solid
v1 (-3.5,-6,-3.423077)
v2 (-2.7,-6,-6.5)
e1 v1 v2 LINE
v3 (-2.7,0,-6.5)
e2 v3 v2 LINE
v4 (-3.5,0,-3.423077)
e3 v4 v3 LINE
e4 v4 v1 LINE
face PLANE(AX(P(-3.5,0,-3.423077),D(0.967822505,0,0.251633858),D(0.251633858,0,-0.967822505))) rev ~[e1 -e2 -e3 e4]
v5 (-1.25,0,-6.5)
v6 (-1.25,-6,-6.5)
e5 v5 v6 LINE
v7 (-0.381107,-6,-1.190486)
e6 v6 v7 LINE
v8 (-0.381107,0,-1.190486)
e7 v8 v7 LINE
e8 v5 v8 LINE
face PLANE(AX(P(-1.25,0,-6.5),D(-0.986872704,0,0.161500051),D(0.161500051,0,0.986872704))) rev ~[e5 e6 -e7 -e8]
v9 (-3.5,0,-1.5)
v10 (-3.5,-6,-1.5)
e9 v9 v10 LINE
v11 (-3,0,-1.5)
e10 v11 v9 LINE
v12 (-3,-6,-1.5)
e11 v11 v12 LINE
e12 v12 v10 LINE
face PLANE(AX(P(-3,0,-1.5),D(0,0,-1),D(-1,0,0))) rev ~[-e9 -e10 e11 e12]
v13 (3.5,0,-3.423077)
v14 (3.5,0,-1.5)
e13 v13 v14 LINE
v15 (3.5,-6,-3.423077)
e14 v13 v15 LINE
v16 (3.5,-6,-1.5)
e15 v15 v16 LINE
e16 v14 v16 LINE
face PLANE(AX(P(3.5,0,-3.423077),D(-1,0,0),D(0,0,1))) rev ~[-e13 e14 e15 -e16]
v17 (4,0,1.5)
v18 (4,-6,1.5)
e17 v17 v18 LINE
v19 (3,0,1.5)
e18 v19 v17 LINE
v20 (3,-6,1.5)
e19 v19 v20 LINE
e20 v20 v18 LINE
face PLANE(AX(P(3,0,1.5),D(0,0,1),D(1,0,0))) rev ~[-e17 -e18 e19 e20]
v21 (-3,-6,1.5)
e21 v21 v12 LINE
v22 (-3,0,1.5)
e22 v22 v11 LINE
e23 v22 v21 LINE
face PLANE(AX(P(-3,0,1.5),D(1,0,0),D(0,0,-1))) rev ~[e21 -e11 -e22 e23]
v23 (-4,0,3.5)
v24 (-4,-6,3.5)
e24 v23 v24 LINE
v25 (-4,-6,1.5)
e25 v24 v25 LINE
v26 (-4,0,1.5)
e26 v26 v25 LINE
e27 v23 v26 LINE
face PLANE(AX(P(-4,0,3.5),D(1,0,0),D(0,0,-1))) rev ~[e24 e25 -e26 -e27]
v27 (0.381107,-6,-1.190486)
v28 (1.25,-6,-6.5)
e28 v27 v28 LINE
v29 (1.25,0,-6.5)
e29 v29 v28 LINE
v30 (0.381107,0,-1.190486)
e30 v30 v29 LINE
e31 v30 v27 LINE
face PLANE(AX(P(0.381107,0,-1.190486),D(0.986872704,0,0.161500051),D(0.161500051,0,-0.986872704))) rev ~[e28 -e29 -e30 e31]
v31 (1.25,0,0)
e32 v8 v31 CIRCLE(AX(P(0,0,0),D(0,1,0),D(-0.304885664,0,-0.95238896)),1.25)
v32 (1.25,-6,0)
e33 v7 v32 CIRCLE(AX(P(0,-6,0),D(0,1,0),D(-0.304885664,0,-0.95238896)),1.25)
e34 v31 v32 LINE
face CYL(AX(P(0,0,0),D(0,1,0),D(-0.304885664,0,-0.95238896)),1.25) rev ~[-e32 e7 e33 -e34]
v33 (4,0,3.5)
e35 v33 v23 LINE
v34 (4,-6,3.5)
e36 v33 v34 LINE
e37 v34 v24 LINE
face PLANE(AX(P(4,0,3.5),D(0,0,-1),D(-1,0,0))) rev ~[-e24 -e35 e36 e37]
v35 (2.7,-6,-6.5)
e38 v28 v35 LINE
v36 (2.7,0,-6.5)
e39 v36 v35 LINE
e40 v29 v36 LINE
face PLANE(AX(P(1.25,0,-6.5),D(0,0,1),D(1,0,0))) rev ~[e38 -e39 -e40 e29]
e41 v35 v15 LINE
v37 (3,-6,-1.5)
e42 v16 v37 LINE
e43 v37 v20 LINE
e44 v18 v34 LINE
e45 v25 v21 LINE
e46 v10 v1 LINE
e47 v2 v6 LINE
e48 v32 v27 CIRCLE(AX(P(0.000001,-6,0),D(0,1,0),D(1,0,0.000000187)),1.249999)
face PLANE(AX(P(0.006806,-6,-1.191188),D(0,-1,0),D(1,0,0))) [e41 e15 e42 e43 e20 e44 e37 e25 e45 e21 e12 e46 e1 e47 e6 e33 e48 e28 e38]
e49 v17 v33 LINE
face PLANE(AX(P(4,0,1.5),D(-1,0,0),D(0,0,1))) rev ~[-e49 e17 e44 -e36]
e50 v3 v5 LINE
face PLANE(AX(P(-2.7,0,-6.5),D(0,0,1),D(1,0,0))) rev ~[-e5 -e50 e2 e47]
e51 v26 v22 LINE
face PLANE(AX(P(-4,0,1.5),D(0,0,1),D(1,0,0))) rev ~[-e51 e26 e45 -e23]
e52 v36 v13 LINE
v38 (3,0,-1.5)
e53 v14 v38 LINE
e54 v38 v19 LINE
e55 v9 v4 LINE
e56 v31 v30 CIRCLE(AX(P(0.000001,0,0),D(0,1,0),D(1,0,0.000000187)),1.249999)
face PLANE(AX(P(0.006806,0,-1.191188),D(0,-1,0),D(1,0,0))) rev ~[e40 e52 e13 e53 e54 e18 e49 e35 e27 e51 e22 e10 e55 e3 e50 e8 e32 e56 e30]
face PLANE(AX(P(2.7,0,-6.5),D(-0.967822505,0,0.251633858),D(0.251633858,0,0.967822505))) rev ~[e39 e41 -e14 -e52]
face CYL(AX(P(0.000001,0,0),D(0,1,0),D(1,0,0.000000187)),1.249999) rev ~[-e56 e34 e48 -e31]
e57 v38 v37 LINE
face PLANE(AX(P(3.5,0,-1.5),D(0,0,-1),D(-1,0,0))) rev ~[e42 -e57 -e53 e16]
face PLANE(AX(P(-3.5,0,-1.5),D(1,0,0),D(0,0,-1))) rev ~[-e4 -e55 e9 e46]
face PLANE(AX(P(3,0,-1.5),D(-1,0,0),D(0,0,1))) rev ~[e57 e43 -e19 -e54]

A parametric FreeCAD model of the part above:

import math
import FreeCAD as App
import Part
import Sketcher

doc = App.newDocument("Part")
params = doc.addObject("Spreadsheet::Sheet", "Params")
for row, (alias, value) in enumerate([
    ("sketch1_width", "8 mm"),
    ("sketch1_width2", "1 mm"),
    ("sketch1_height", "2 mm"),
    ("sketch1_height2", "3 mm"),
    ("sketch1_radius", "1.25 mm"),
    ("pad1_length", "6 mm"),
], start=1):
    params.set(f"A{row}", alias)
    params.set(f"B{row}", "=" + value)
    params.setAlias(f"B{row}", alias)

body = doc.addObject("PartDesign::Body", "Body")

sketch1 = doc.addObject("Sketcher::SketchObject", "Sketch")
body.addObject(sketch1)
sketch1.AttachmentSupport = (doc.XZ_Plane, [""])
sketch1.MapMode = "FlatFace"
sketch1.addGeometry(Part.LineSegment(App.Vector(4, 3.5, 0), App.Vector(-4, 3.5, 0)), False)
sketch1.addGeometry(Part.LineSegment(App.Vector(-4, 3.5, 0), App.Vector(-4, 1.5, 0)), False)
sketch1.addGeometry(Part.LineSegment(App.Vector(-4, 1.5, 0), App.Vector(-3, 1.5, 0)), False)
sketch1.addGeometry(Part.LineSegment(App.Vector(-3, 1.5, 0), App.Vector(-3, -1.5, 0)), False)
sketch1.addGeometry(Part.LineSegment(App.Vector(-3, -1.5, 0), App.Vector(-3.5, -1.5, 0)), False)
sketch1.addGeometry(Part.LineSegment(App.Vector(-3.5, -1.5, 0), App.Vector(-3.5, -3.423077, 0)), False)
sketch1.addGeometry(Part.LineSegment(App.Vector(-3.5, -3.423077, 0), App.Vector(-2.7, -6.5, 0)), False)
sketch1.addGeometry(Part.LineSegment(App.Vector(-2.7, -6.5, 0), App.Vector(-1.25, -6.5, 0)), False)
sketch1.addGeometry(Part.LineSegment(App.Vector(-1.25, -6.5, 0), App.Vector(-0.381107, -1.190486, 0)), False)
sketch1.addGeometry(Part.ArcOfCircle(Part.Circle(App.Vector(0, 0, 0), App.Vector(0, 0, 1), 1.25), math.radians(-0.000007), math.radians(252.248715)), False)
sketch1.addGeometry(Part.ArcOfCircle(Part.Circle(App.Vector(0.000001, 0, 0), App.Vector(0, 0, 1), 1.249999), math.radians(-72.24874), math.radians(0.000011)), False)
sketch1.addGeometry(Part.LineSegment(App.Vector(0.381107, -1.190486, 0), App.Vector(1.25, -6.5, 0)), False)
sketch1.addGeometry(Part.LineSegment(App.Vector(1.25, -6.5, 0), App.Vector(2.7, -6.5, 0)), False)
sketch1.addGeometry(Part.LineSegment(App.Vector(2.7, -6.5, 0), App.Vector(3.5, -3.423077, 0)), False)
sketch1.addGeometry(Part.LineSegment(App.Vector(3.5, -3.423077, 0), App.Vector(3.5, -1.5, 0)), False)
sketch1.addGeometry(Part.LineSegment(App.Vector(3.5, -1.5, 0), App.Vector(3, -1.5, 0)), False)
sketch1.addGeometry(Part.LineSegment(App.Vector(3, -1.5, 0), App.Vector(3, 1.5, 0)), False)
sketch1.addGeometry(Part.LineSegment(App.Vector(3, 1.5, 0), App.Vector(4, 1.5, 0)), False)
sketch1.addGeometry(Part.LineSegment(App.Vector(4, 1.5, 0), App.Vector(4, 3.5, 0)), False)
sketch1.addConstraint(Sketcher.Constraint("Coincident", 0, 2, 1, 1))
sketch1.addConstraint(Sketcher.Constraint("Coincident", 1, 2, 2, 1))
sketch1.addConstraint(Sketcher.Constraint("Coincident", 2, 2, 3, 1))
sketch1.addConstraint(Sketcher.Constraint("Coincident", 3, 2, 4, 1))
sketch1.addConstraint(Sketcher.Constraint("Coincident", 4, 2, 5, 1))
sketch1.addConstraint(Sketcher.Constraint("Coincident", 5, 2, 6, 1))
sketch1.addConstraint(Sketcher.Constraint("Coincident", 6, 2, 7, 1))
sketch1.addConstraint(Sketcher.Constraint("Coincident", 7, 2, 8, 1))
sketch1.addConstraint(Sketcher.Constraint("Coincident", 8, 2, 9, 2))
sketch1.addConstraint(Sketcher.Constraint("Tangent", 9, 1, 10, 2))
sketch1.addConstraint(Sketcher.Constraint("Coincident", 10, 1, 11, 1))
sketch1.addConstraint(Sketcher.Constraint("Coincident", 11, 2, 12, 1))
sketch1.addConstraint(Sketcher.Constraint("Coincident", 12, 2, 13, 1))
sketch1.addConstraint(Sketcher.Constraint("Coincident", 13, 2, 14, 1))
sketch1.addConstraint(Sketcher.Constraint("Coincident", 14, 2, 15, 1))
sketch1.addConstraint(Sketcher.Constraint("Coincident", 15, 2, 16, 1))
sketch1.addConstraint(Sketcher.Constraint("Coincident", 16, 2, 17, 1))
sketch1.addConstraint(Sketcher.Constraint("Coincident", 17, 2, 18, 1))
sketch1.addConstraint(Sketcher.Constraint("Coincident", 18, 2, 0, 1))
sketch1.addConstraint(Sketcher.Constraint("Horizontal", 0))
sketch1.addConstraint(Sketcher.Constraint("Vertical", 1))
sketch1.addConstraint(Sketcher.Constraint("Horizontal", 2))
sketch1.addConstraint(Sketcher.Constraint("Vertical", 3))
sketch1.addConstraint(Sketcher.Constraint("Horizontal", 4))
sketch1.addConstraint(Sketcher.Constraint("Vertical", 5))
sketch1.addConstraint(Sketcher.Constraint("Horizontal", 7))
sketch1.addConstraint(Sketcher.Constraint("Horizontal", 12))
sketch1.addConstraint(Sketcher.Constraint("Vertical", 14))
sketch1.addConstraint(Sketcher.Constraint("Horizontal", 15))
sketch1.addConstraint(Sketcher.Constraint("Vertical", 16))
sketch1.addConstraint(Sketcher.Constraint("Horizontal", 17))
sketch1.addConstraint(Sketcher.Constraint("Vertical", 18))
sketch1.addConstraint(Sketcher.Constraint("Coincident", 9, 3, -1, 1))
sketch1.addConstraint(Sketcher.Constraint("Equal", 9, 10))
sketch1.addConstraint(Sketcher.Constraint("Symmetric", 2, 2, 15, 2, -1, 1))
sketch1.addConstraint(Sketcher.Constraint("Symmetric", 7, 2, 11, 2, -2))
sketch1.addConstraint(Sketcher.Constraint("Symmetric", 5, 2, 13, 2, -2))
sketch1.addConstraint(Sketcher.Constraint("Symmetric", 1, 2, 17, 2, -2))
sketch1.addConstraint(Sketcher.Constraint("PointOnObject", 9, 1, -1))
sketch1.addConstraint(Sketcher.Constraint("Horizontal", 8, 2, 10, 1))
sketch1.addConstraint(Sketcher.Constraint("Horizontal", 4, 2, 14, 2))
sketch1.addConstraint(Sketcher.Constraint("Vertical", 9, 1, 11, 2))
sketch1.addConstraint(Sketcher.Constraint("Equal", 7, 12))
sketch1.addConstraint(Sketcher.Constraint("DistanceX", 0, 2, 0, 1, 8.0))
sketch1.addConstraint(Sketcher.Constraint("DistanceX", 2, 1, 2, 2, 1.0))
sketch1.addConstraint(Sketcher.Constraint("DistanceY", 1, 2, 1, 1, 2.0))
sketch1.addConstraint(Sketcher.Constraint("DistanceY", 3, 2, 3, 1, 3.0))
sketch1.addConstraint(Sketcher.Constraint("Radius", 9, 1.25))
sketch1.addConstraint(Sketcher.Constraint("DistanceX", 4, 2, 4, 1, 0.5))
sketch1.addConstraint(Sketcher.Constraint("DistanceY", 6, 2, 3, 2, 5.0))
sketch1.addConstraint(Sketcher.Constraint("DistanceX", 7, 1, 7, 2, 1.45))
sketch1.addConstraint(Sketcher.Constraint("Distance", 8, 5.380141))
sketch1.addConstraint(Sketcher.Constraint("DistanceY", 5, 2, 5, 1, 1.923077))
sketch1.setExpression("Constraints[43]", "Params.sketch1_width")
sketch1.setExpression("Constraints[44]", "Params.sketch1_width2")
sketch1.setExpression("Constraints[45]", "Params.sketch1_height")
sketch1.setExpression("Constraints[46]", "Params.sketch1_height2")
sketch1.setExpression("Constraints[47]", "Params.sketch1_radius")
pad1 = doc.addObject("PartDesign::Pad", "Pad")
body.addObject(pad1)
pad1.Profile = sketch1
pad1.setExpression("Length", "Params.pad1_length")

doc.recompute()
